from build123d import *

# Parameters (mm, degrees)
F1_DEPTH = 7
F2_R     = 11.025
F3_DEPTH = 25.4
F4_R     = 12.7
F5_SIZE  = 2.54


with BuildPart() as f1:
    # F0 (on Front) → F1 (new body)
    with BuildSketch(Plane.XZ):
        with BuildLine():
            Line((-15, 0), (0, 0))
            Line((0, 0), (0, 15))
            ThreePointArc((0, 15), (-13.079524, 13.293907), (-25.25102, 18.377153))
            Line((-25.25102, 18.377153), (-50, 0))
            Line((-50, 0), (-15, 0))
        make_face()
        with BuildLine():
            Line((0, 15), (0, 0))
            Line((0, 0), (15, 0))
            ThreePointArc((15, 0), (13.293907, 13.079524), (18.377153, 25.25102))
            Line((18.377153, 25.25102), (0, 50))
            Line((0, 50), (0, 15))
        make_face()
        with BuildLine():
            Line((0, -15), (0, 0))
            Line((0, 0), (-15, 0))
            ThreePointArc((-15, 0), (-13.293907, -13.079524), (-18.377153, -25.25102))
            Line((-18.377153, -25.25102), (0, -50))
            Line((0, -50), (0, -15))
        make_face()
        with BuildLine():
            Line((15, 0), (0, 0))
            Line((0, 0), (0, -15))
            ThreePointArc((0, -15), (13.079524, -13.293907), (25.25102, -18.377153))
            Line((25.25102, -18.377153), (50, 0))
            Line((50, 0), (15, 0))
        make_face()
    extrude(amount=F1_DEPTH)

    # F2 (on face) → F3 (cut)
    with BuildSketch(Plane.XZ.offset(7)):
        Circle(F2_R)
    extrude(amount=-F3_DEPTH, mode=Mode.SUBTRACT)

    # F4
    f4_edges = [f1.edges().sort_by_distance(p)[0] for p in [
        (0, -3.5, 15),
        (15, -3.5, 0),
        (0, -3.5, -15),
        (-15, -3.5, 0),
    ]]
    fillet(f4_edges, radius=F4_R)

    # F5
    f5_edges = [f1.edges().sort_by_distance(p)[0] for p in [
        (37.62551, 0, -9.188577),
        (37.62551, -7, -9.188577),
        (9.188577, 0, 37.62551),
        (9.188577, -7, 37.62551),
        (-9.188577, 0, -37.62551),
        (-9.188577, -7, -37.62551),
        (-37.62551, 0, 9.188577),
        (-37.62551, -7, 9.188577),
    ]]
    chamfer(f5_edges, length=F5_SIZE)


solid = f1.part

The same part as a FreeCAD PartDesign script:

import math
import FreeCAD as App
import Part
import Sketcher
from FreeCAD import Vector
Q = App.Units.Quantity


def edges_at(feature, points):
    """Names of the edges that pass closest to the given points."""
    edges = feature.Shape.Edges
    near = lambda p: min(range(len(edges)), key=lambda i: edges[i].distToShape(Part.Vertex(*p))[0])
    return sorted({f"Edge{near(p) + 1}" for p in points})

doc = App.newDocument("Part")
params = doc.addObject("Spreadsheet::Sheet", "Params")
for row, (alias, value) in enumerate([
    ("sketch1_radius", "1 in"),
    ("pad1_length", "7 mm"),
    ("pocket1_length", "1 in"),
    ("fillet_radius", "0.5 in"),
    ("chamfer_size", "0.1 in"),
], start=1):
    params.set(f"A{row}", alias)
    params.set(f"B{row}", "=" + value)
    params.setAlias(f"B{row}", alias)

body = doc.addObject("PartDesign::Body", "Body")

sketch1 = body.newObject("Sketcher::SketchObject", "Sketch")
sketch1.AttachmentSupport = (doc.getObject("XZ_Plane"), [""])
sketch1.MapMode = "FlatFace"
sketch1.addGeometry(Part.ArcOfCircle(Part.Circle(Vector(-10, 38, 0), Vector(0, 0, 1), 25), math.radians(-128), math.radians(-68)), False)
sketch1.addGeometry(Part.LineSegment(Vector(-25, 18, 0), Vector(-50, 0, 0)), False)
sketch1.addGeometry(Part.LineSegment(Vector(-50, 0, 0), Vector(-15, 0, 0)), False)
sketch1.addGeometry(Part.ArcOfCircle(Part.Circle(Vector(-38, -10, 0), Vector(0, 0, 1), 25), math.radians(-38), math.radians(22)), False)
sketch1.addGeometry(Part.LineSegment(Vector(-18, -25, 0), Vector(0, -50, 0)), False)
sketch1.addGeometry(Part.LineSegment(Vector(0, -50, 0), Vector(0, -15, 0)), False)
sketch1.addGeometry(Part.ArcOfCircle(Part.Circle(Vector(10, -38, 0), Vector(0, 0, 1), 25), math.radians(52), math.radians(112)), False)
sketch1.addGeometry(Part.LineSegment(Vector(25, -18, 0), Vector(50, 0, 0)), False)
sketch1.addGeometry(Part.LineSegment(Vector(50, 0, 0), Vector(15, 0, 0)), False)
sketch1.addGeometry(Part.ArcOfCircle(Part.Circle(Vector(38, 10, 0), Vector(0, 0, 1), 25), math.radians(142), math.radians(202)), False)
sketch1.addGeometry(Part.LineSegment(Vector(18, 25, 0), Vector(0, 50, 0)), False)
sketch1.addGeometry(Part.LineSegment(Vector(0, 50, 0), Vector(0, 15, 0)), False)
sketch1.addConstraint(Sketcher.Constraint("Coincident", 0, 1, 1, 1))
sketch1.addConstraint(Sketcher.Constraint("Coincident", 1, 2, 2, 1))
sketch1.addConstraint(Sketcher.Constraint("Coincident", 2, 2, 3, 2))
sketch1.addConstraint(Sketcher.Constraint("Coincident", 3, 1, 4, 1))
sketch1.addConstraint(Sketcher.Constraint("Coincident", 4, 2, 5, 1))
sketch1.addConstraint(Sketcher.Constraint("Coincident", 5, 2, 6, 2))
sketch1.addConstraint(Sketcher.Constraint("Coincident", 6, 1, 7, 1))
sketch1.addConstraint(Sketcher.Constraint("Coincident", 7, 2, 8, 1))
sketch1.addConstraint(Sketcher.Constraint("Coincident", 8, 2, 9, 2))
sketch1.addConstraint(Sketcher.Constraint("Coincident", 9, 1, 10, 1))
sketch1.addConstraint(Sketcher.Constraint("Coincident", 10, 2, 11, 1))
sketch1.addConstraint(Sketcher.Constraint("Coincident", 11, 2, 0, 2))
sketch1.addConstraint(Sketcher.Constraint("Horizontal", 2))
sketch1.addConstraint(Sketcher.Constraint("Vertical", 5))
sketch1.addConstraint(Sketcher.Constraint("Horizontal", 8))
sketch1.addConstraint(Sketcher.Constraint("Vertical", 11))
sketch1.addConstraint(Sketcher.Constraint("Equal", 0, 3))
sketch1.addConstraint(Sketcher.Constraint("Equal", 3, 6))
sketch1.addConstraint(Sketcher.Constraint("Equal", 6, 9))
sketch1.addConstraint(Sketcher.Constraint("Symmetric", 0, 3, 6, 3, -1, 1))
sketch1.addConstraint(Sketcher.Constraint("Symmetric", 3, 3, 9, 3, -1, 1))
sketch1.addConstraint(Sketcher.Constraint("Symmetric", 1, 2, 7, 2, -1, 1))
sketch1.addConstraint(Sketcher.Constraint("Symmetric", 4, 2, 10, 2, -1, 1))
sketch1.addConstraint(Sketcher.Constraint("PointOnObject", 1, 2, -1))
sketch1.addConstraint(Sketcher.Constraint("PointOnObject", 4, 2, -2))
sketch1.addConstraint(Sketcher.Constraint("Perpendicular", 1, 4))
sketch1.addConstraint(Sketcher.Constraint("Perpendicular", 4, 7))
sketch1.addConstraint(Sketcher.Constraint("Perpendicular", 7, 10))
sketch1.addConstraint(Sketcher.Constraint("Equal", 8, 5))
sketch1.addConstraint(Sketcher.Constraint("Equal", 1, 4))
sketch1.addConstraint(Sketcher.Constraint("Radius", 0, Q("1 in")))
sketch1.addConstraint(Sketcher.Constraint("DistanceX", 2, 1, 2, 2, Q("35 mm")))
sketch1.addConstraint(Sketcher.Constraint("DistanceX", 1, 2, -1, 1, Q("50 mm")))
sketch1.addConstraint(Sketcher.Constraint("DistanceY", 4, 2, -1, 1, Q("50 mm")))
sketch1.addConstraint(Sketcher.Constraint("Distance", 1, Q("30.825829 mm")))
sketch1.addConstraint(Sketcher.Constraint("DistanceX", 0, 1, -1, 1, Q("25.25102 mm")))
sketch1.setExpression("Constraints[30]", "Params.sketch1_radius")
pad1 = body.newObject("PartDesign::Pad", "Pad")
pad1.Profile = sketch1
pad1.setExpression("Length", "Params.pad1_length")

sketch2 = body.newObject("Sketcher::SketchObject", "Sketch001")
sketch2.AttachmentSupport = (doc.getObject("XZ_Plane"), [""])
sketch2.MapMode = "FlatFace"
sketch2.AttachmentOffset = App.Placement(Vector(0, 0, 7), App.Rotation())
sketch2.addGeometry(Part.Circle(Vector(0, 0, 0), Vector(0, 0, 1), 11), False)
sketch2.addConstraint(Sketcher.Constraint("Coincident", 0, 3, -1, 1))
sketch2.addConstraint(Sketcher.Constraint("Diameter", 0, Q("22.05 mm")))
pocket1 = body.newObject("PartDesign::Pocket", "Pocket")
pocket1.Profile = sketch2
pocket1.setExpression("Length", "Params.pocket1_length")
doc.recompute()

fillet = body.newObject("PartDesign::Fillet", "Fillet")
fillet.Base = (pocket1, edges_at(pocket1, [
    (0, -3.5, 15),
    (15, -3.5, 0),
    (0, -3.5, -15),
    (-15, -3.5, 0),
]))
fillet.setExpression("Radius", "Params.fillet_radius")
doc.recompute()

chamfer = body.newObject("PartDesign::Chamfer", "Chamfer")
chamfer.Base = (fillet, edges_at(fillet, [
    (37.626, 0, -9.189),
    (37.626, -7, -9.189),
    (9.189, 0, 37.626),
    (9.189, -7, 37.626),
    (-9.189, 0, -37.626),
    (-9.189, -7, -37.626),
    (-37.626, 0, 9.189),
    (-37.626, -7, 9.189),
]))
chamfer.setExpression("Size", "Params.chamfer_size")

doc.recompute()
